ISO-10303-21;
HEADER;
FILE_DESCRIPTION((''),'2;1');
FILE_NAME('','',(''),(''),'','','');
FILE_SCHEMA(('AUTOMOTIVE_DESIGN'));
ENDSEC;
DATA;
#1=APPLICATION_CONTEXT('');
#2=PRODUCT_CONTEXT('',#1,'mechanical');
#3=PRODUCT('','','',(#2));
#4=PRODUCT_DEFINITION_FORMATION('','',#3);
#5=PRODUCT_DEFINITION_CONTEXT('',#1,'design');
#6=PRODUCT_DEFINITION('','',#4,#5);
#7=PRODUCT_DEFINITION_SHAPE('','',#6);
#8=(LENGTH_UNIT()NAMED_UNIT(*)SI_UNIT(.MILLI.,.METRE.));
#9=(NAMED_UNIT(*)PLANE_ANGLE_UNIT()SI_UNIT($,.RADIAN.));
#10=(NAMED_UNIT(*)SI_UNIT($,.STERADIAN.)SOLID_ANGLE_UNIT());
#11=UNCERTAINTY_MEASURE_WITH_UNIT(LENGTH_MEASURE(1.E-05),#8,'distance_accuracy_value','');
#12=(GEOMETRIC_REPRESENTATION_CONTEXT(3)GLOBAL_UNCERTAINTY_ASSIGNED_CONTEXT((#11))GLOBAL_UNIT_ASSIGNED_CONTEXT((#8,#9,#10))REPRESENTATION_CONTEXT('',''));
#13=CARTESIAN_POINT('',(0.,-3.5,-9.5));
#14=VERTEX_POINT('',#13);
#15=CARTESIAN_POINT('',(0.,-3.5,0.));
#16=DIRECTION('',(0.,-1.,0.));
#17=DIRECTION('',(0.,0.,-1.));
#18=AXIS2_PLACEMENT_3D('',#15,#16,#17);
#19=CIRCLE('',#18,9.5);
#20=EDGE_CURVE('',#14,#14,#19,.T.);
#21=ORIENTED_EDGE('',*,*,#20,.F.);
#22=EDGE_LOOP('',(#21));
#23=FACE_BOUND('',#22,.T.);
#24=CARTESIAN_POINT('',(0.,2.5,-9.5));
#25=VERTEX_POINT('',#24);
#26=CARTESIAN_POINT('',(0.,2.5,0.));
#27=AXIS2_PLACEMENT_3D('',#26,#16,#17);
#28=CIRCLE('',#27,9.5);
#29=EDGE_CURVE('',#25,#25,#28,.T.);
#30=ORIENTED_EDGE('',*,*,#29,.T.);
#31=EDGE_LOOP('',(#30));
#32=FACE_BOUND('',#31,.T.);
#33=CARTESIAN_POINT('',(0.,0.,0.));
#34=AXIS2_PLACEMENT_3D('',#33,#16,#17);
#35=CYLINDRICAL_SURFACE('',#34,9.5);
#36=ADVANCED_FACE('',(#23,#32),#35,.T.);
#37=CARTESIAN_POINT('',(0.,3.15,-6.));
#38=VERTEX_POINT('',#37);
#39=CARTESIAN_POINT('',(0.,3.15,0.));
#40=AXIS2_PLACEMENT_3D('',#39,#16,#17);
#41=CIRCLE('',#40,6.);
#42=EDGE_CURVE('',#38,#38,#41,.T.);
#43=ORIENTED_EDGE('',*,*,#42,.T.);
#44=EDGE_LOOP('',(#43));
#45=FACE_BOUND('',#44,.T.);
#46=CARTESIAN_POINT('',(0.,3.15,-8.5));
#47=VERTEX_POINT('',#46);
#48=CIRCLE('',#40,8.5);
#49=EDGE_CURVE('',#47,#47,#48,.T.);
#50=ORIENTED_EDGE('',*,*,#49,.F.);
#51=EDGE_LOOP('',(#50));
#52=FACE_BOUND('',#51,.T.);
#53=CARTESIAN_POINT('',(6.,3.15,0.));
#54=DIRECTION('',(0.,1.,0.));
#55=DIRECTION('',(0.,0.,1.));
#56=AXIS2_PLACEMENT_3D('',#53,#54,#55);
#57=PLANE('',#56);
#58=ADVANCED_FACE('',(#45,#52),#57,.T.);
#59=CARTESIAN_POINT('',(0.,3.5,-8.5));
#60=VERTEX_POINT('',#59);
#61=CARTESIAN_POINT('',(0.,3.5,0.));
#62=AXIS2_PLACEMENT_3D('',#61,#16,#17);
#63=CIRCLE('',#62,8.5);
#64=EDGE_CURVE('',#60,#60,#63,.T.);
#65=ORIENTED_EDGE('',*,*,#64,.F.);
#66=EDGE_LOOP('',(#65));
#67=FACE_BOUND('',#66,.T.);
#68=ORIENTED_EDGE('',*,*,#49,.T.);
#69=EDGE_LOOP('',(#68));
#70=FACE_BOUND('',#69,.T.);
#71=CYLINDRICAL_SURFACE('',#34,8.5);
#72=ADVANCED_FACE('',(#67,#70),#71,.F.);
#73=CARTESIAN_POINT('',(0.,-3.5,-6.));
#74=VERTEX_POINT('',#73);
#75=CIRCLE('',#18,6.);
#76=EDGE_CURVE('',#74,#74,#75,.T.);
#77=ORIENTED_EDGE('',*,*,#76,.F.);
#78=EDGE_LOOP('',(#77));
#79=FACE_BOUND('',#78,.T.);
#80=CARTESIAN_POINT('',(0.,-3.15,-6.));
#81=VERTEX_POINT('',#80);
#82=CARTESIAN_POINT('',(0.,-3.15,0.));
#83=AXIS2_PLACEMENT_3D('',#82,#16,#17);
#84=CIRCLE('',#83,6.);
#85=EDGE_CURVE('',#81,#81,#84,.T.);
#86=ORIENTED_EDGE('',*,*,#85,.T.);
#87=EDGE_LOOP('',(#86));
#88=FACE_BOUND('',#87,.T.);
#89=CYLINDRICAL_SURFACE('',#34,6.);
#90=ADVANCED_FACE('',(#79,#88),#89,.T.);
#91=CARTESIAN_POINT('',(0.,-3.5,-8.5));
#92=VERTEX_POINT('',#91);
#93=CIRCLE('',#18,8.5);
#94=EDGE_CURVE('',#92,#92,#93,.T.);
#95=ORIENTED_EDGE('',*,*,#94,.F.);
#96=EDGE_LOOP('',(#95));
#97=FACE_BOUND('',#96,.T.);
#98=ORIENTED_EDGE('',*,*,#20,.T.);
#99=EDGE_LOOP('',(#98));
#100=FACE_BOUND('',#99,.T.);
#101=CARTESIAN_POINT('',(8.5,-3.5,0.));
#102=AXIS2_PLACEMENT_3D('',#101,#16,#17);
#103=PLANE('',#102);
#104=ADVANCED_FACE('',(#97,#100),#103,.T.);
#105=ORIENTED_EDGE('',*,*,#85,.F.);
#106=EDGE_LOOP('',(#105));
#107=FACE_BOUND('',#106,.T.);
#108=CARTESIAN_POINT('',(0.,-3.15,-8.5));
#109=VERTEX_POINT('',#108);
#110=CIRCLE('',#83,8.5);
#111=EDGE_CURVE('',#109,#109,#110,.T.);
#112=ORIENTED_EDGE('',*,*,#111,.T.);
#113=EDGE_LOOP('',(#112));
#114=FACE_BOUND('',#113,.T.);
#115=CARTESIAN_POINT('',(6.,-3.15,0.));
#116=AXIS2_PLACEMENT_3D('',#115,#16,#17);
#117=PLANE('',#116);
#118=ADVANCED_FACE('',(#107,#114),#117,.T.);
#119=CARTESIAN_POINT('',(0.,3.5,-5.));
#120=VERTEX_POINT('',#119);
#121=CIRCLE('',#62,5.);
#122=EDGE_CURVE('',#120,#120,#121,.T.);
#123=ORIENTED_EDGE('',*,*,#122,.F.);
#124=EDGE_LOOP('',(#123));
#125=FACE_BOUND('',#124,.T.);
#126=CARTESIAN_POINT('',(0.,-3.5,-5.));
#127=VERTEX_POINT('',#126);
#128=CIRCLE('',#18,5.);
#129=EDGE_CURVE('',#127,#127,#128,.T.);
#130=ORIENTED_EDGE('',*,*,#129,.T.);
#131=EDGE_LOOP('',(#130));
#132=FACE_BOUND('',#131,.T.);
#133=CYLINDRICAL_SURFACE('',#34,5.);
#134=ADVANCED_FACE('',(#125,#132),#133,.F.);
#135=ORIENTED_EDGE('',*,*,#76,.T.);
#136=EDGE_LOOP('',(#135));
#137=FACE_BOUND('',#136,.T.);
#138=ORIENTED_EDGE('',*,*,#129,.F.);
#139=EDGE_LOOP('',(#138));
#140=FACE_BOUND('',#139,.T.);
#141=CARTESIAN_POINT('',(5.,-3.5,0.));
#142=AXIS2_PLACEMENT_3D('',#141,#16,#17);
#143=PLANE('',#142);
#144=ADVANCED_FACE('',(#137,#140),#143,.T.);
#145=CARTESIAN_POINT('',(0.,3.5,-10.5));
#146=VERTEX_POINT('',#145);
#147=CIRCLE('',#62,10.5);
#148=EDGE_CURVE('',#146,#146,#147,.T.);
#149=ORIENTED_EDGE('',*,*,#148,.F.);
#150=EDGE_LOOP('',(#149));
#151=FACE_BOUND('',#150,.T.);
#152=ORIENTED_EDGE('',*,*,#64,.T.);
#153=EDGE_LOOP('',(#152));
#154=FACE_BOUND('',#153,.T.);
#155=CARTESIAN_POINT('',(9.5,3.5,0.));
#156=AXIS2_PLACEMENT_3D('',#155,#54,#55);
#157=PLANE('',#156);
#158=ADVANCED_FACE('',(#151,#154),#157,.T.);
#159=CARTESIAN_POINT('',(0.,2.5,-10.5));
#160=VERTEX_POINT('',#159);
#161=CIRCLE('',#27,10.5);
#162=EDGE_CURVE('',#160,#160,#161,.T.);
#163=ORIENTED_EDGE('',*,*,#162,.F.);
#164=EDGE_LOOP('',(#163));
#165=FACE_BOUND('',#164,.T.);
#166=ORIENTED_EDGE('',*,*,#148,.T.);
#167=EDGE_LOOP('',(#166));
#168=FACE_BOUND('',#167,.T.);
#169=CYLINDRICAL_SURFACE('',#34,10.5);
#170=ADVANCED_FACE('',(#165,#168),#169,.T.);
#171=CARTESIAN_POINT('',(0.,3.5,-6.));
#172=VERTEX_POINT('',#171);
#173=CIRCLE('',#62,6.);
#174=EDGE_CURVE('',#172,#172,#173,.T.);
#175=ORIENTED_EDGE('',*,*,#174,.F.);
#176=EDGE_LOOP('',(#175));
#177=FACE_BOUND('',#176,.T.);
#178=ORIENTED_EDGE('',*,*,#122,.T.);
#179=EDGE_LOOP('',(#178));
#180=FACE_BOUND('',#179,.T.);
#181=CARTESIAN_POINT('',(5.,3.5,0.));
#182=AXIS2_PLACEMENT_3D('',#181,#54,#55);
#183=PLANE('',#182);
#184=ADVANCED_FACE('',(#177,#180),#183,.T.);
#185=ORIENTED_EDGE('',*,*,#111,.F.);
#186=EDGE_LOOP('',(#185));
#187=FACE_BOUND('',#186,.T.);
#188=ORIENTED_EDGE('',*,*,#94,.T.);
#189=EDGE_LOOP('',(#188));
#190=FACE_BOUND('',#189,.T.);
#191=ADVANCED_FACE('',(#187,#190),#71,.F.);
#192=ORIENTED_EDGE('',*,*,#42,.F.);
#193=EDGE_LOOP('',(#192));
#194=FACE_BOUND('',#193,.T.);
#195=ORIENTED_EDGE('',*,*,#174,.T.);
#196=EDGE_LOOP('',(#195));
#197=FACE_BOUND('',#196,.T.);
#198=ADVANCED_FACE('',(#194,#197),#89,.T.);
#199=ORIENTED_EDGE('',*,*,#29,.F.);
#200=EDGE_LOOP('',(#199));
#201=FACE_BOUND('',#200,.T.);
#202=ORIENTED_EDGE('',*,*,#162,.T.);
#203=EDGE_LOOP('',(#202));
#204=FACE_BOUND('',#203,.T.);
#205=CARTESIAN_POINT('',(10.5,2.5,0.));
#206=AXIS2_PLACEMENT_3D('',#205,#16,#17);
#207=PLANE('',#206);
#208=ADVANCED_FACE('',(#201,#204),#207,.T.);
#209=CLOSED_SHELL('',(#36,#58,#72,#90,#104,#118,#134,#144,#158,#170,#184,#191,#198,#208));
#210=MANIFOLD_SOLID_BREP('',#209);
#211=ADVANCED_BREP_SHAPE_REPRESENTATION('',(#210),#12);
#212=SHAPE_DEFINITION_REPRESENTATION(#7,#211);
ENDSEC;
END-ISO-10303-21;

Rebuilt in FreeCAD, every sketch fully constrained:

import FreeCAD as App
import Part
import Sketcher
from FreeCAD import Vector
Q = App.Units.Quantity

doc = App.newDocument("Part")
params = doc.addObject("Spreadsheet::Sheet", "Params")
for row, (alias, value) in enumerate([
    ("sketch1_width", "1 mm"),
    ("sketch1_height", "7 mm"),
    ("sketch1_width2", "2.5 mm"),
    ("sketch1_height2", "0.35 mm"),
    ("revolution_angle", "360 deg"),
], start=1):
    params.set(f"A{row}", alias)
    params.set(f"B{row}", "=" + value)
    params.setAlias(f"B{row}", alias)

body = doc.addObject("PartDesign::Body", "Body")

sketch1 = doc.addObject("Sketcher::SketchObject", "Sketch")
body.addObject(sketch1)
sketch1.AttachmentSupport = (doc.XY_Plane, [""])
sketch1.MapMode = "FlatFace"
sketch1.addGeometry([
    Part.LineSegment(Vector(5, 3.5, 0), Vector(5, -3.5, 0)),
    Part.LineSegment(Vector(5, -3.5, 0), Vector(6, -3.5, 0)),
    Part.LineSegment(Vector(6, -3.5, 0), Vector(6, -3.15, 0)),
    Part.LineSegment(Vector(6, -3.15, 0), Vector(8.5, -3.15, 0)),
    Part.LineSegment(Vector(8.5, -3.15, 0), Vector(8.5, -3.5, 0)),
    Part.LineSegment(Vector(8.5, -3.5, 0), Vector(9.5, -3.5, 0)),
    Part.LineSegment(Vector(9.5, -3.5, 0), Vector(9.5, 2.5, 0)),
    Part.LineSegment(Vector(9.5, 2.5, 0), Vector(10.5, 2.5, 0)),
    Part.LineSegment(Vector(10.5, 2.5, 0), Vector(10.5, 3.5, 0)),
    Part.LineSegment(Vector(10.5, 3.5, 0), Vector(8.5, 3.5, 0)),
    Part.LineSegment(Vector(8.5, 3.5, 0), Vector(8.5, 3.15, 0)),
    Part.LineSegment(Vector(8.5, 3.15, 0), Vector(6, 3.15, 0)),
    Part.LineSegment(Vector(6, 3.15, 0), Vector(6, 3.5, 0)),
    Part.LineSegment(Vector(6, 3.5, 0), Vector(5, 3.5, 0)),
], False)
sketch1.addConstraint([
    Sketcher.Constraint("Coincident", 0, 2, 1, 1),
    Sketcher.Constraint("Coincident", 1, 2, 2, 1),
    Sketcher.Constraint("Coincident", 2, 2, 3, 1),
    Sketcher.Constraint("Coincident", 3, 2, 4, 1),
    Sketcher.Constraint("Coincident", 4, 2, 5, 1),
    Sketcher.Constraint("Coincident", 5, 2, 6, 1),
    Sketcher.Constraint("Coincident", 6, 2, 7, 1),
    Sketcher.Constraint("Coincident", 7, 2, 8, 1),
    Sketcher.Constraint("Coincident", 8, 2, 9, 1),
    Sketcher.Constraint("Coincident", 9, 2, 10, 1),
    Sketcher.Constraint("Coincident", 10, 2, 11, 1),
    Sketcher.Constraint("Coincident", 11, 2, 12, 1),
    Sketcher.Constraint("Coincident", 12, 2, 13, 1),
    Sketcher.Constraint("Coincident", 13, 2, 0, 1),
    Sketcher.Constraint("Vertical", 0),
    Sketcher.Constraint("Horizontal", 1),
    Sketcher.Constraint("Vertical", 2),
    Sketcher.Constraint("Horizontal", 3),
    Sketcher.Constraint("Vertical", 4),
    Sketcher.Constraint("Horizontal", 5),
    Sketcher.Constraint("Vertical", 6),
    Sketcher.Constraint("Horizontal", 7),
    Sketcher.Constraint("Vertical", 8),
    Sketcher.Constraint("Horizontal", 9),
    Sketcher.Constraint("Vertical", 10),
    Sketcher.Constraint("Horizontal", 11),
    Sketcher.Constraint("Vertical", 12),
    Sketcher.Constraint("Horizontal", 13),
    Sketcher.Constraint("Symmetric", 4, 2, 9, 2, -1),
    Sketcher.Constraint("Symmetric", 2, 2, 11, 2, -1),
    Sketcher.Constraint("Horizontal", 1, 2, 4, 2),
    Sketcher.Constraint("Horizontal", 9, 2, 12, 2),
    Sketcher.Constraint("Equal", 1, 5),
    Sketcher.Constraint("Equal", 5, 7),
    Sketcher.Constraint("Equal", 13, 8),
    Sketcher.Constraint("DistanceX", 1, 1, 1, 2, Q("1 mm")),
    Sketcher.Constraint("DistanceY", 0, 2, 0, 1, Q("7 mm")),
    Sketcher.Constraint("DistanceX", 3, 1, 3, 2, Q("2.5 mm")),
    Sketcher.Constraint("DistanceX", -1, 1, 0, 2, Q("5 mm")),
    Sketcher.Constraint("DistanceY", 2, 1, 2, 2, Q("0.35 mm")),
])
sketch1.setExpression("Constraints[35]", "Params.sketch1_width")
sketch1.setExpression("Constraints[36]", "Params.sketch1_height")
sketch1.setExpression("Constraints[37]", "Params.sketch1_width2")
sketch1.setExpression("Constraints[39]", "Params.sketch1_height2")
revolution = doc.addObject("PartDesign::Revolution", "Revolution")
body.addObject(revolution)
revolution.Profile = sketch1
revolution.ReferenceAxis = (sketch1, ["V_Axis"])
revolution.setExpression("Angle", "Params.revolution_angle")

doc.recompute()
